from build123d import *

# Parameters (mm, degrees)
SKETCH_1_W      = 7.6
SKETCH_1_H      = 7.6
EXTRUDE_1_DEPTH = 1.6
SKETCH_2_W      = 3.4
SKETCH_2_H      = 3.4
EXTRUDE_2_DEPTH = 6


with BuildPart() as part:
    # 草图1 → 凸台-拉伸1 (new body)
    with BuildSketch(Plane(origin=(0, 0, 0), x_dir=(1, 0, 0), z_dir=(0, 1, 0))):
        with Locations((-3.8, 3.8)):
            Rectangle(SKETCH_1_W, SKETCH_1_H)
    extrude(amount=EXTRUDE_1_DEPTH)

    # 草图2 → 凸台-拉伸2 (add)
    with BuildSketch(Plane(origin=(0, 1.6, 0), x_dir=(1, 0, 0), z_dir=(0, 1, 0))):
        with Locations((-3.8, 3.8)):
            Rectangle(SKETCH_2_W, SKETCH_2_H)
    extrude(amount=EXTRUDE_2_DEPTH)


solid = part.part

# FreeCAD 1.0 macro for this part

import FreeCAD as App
import Part
import Sketcher

V = App.Vector
Q = App.Units.Quantity


def add_polygon(sketch, points):
    """Adds a closed chain of lines whose ends are joined by coincident constraints."""
    first, n = sketch.GeometryCount, len(points)
    for a, b in zip(points, points[1:] + points[:1]):
        sketch.addGeometry(Part.LineSegment(App.Vector(*a, 0), App.Vector(*b, 0)), False)
    for i in range(n):
        sketch.addConstraint(Sketcher.Constraint("Coincident", first + i, 2, first + (i + 1) % n, 1))

doc = App.newDocument("Part")
params = doc.addObject("Spreadsheet::Sheet", "Params")
for row, (alias, value) in enumerate([
    ("sketch1_width", "7.6 mm"),
    ("pad1_length", "1.6 mm"),
    ("sketch2_width", "3.4 mm"),
    ("pad2_length", "6 mm"),
], start=1):
    params.set(f"A{row}", alias)
    params.set(f"B{row}", "=" + value)
    params.setAlias(f"B{row}", alias)

body = doc.addObject("PartDesign::Body", "Body")

# Sketch on XZ plane
sketch1 = body.newObject("Sketcher::SketchObject", "Sketch")
sketch1.AttachmentSupport = (doc.getObject("XZ_Plane"), [""])
sketch1.MapMode = "FlatFace"
add_polygon(sketch1, [(-8, -8), (-8, 0), (0, 0), (0, -8)])  # lines 0-3
sketch1.addConstraint([
    Sketcher.Constraint("Vertical", 0),
    Sketcher.Constraint("Horizontal", 1),
    Sketcher.Constraint("Vertical", 2),
    Sketcher.Constraint("Horizontal", 3),
    Sketcher.Constraint("Coincident", 1, 2, -1, 1),
    Sketcher.Constraint("Equal", 3, 0),
    Sketcher.Constraint("DistanceX", 1, 1, 1, 2, Q("7.6 mm")),
])
sketch1.setExpression("Constraints[10]", "Params.sketch1_width")
pad1 = body.newObject("PartDesign::Pad", "Pad")
pad1.Profile = sketch1
pad1.setExpression("Length", "Params.pad1_length")
pad1.Reversed = True

# Sketch on XZ plane
sketch2 = body.newObject("Sketcher::SketchObject", "Sketch001")
sketch2.AttachmentSupport = (doc.getObject("XZ_Plane"), [""])
sketch2.MapMode = "FlatFace"
sketch2.AttachmentOffset = App.Placement(V(0, 0, -1.6), App.Rotation())
add_polygon(sketch2, [(-5.5, -5.5), (-5.5, -2.1), (-2.1, -2.1), (-2.1, -5.5)])  # lines 0-3
sketch2.addConstraint([
    Sketcher.Constraint("Vertical", 0),
    Sketcher.Constraint("Horizontal", 1),
    Sketcher.Constraint("Vertical", 2),
    Sketcher.Constraint("Horizontal", 3),
    Sketcher.Constraint("Equal", 3, 0),
    Sketcher.Constraint("DistanceX", 1, 1, 1, 2, Q("3.4 mm")),
    Sketcher.Constraint("DistanceX", 0, 2, -1, 1, Q("5.5 mm")),
    Sketcher.Constraint("DistanceY", 0, 2, -1, 1, Q("2.1 mm")),
])
sketch2.setExpression("Constraints[9]", "Params.sketch2_width")
pad2 = body.newObject("PartDesign::Pad", "Pad001")
pad2.Profile = sketch2
pad2.setExpression("Length", "Params.pad2_length")
pad2.Reversed = True

doc.recompute()
